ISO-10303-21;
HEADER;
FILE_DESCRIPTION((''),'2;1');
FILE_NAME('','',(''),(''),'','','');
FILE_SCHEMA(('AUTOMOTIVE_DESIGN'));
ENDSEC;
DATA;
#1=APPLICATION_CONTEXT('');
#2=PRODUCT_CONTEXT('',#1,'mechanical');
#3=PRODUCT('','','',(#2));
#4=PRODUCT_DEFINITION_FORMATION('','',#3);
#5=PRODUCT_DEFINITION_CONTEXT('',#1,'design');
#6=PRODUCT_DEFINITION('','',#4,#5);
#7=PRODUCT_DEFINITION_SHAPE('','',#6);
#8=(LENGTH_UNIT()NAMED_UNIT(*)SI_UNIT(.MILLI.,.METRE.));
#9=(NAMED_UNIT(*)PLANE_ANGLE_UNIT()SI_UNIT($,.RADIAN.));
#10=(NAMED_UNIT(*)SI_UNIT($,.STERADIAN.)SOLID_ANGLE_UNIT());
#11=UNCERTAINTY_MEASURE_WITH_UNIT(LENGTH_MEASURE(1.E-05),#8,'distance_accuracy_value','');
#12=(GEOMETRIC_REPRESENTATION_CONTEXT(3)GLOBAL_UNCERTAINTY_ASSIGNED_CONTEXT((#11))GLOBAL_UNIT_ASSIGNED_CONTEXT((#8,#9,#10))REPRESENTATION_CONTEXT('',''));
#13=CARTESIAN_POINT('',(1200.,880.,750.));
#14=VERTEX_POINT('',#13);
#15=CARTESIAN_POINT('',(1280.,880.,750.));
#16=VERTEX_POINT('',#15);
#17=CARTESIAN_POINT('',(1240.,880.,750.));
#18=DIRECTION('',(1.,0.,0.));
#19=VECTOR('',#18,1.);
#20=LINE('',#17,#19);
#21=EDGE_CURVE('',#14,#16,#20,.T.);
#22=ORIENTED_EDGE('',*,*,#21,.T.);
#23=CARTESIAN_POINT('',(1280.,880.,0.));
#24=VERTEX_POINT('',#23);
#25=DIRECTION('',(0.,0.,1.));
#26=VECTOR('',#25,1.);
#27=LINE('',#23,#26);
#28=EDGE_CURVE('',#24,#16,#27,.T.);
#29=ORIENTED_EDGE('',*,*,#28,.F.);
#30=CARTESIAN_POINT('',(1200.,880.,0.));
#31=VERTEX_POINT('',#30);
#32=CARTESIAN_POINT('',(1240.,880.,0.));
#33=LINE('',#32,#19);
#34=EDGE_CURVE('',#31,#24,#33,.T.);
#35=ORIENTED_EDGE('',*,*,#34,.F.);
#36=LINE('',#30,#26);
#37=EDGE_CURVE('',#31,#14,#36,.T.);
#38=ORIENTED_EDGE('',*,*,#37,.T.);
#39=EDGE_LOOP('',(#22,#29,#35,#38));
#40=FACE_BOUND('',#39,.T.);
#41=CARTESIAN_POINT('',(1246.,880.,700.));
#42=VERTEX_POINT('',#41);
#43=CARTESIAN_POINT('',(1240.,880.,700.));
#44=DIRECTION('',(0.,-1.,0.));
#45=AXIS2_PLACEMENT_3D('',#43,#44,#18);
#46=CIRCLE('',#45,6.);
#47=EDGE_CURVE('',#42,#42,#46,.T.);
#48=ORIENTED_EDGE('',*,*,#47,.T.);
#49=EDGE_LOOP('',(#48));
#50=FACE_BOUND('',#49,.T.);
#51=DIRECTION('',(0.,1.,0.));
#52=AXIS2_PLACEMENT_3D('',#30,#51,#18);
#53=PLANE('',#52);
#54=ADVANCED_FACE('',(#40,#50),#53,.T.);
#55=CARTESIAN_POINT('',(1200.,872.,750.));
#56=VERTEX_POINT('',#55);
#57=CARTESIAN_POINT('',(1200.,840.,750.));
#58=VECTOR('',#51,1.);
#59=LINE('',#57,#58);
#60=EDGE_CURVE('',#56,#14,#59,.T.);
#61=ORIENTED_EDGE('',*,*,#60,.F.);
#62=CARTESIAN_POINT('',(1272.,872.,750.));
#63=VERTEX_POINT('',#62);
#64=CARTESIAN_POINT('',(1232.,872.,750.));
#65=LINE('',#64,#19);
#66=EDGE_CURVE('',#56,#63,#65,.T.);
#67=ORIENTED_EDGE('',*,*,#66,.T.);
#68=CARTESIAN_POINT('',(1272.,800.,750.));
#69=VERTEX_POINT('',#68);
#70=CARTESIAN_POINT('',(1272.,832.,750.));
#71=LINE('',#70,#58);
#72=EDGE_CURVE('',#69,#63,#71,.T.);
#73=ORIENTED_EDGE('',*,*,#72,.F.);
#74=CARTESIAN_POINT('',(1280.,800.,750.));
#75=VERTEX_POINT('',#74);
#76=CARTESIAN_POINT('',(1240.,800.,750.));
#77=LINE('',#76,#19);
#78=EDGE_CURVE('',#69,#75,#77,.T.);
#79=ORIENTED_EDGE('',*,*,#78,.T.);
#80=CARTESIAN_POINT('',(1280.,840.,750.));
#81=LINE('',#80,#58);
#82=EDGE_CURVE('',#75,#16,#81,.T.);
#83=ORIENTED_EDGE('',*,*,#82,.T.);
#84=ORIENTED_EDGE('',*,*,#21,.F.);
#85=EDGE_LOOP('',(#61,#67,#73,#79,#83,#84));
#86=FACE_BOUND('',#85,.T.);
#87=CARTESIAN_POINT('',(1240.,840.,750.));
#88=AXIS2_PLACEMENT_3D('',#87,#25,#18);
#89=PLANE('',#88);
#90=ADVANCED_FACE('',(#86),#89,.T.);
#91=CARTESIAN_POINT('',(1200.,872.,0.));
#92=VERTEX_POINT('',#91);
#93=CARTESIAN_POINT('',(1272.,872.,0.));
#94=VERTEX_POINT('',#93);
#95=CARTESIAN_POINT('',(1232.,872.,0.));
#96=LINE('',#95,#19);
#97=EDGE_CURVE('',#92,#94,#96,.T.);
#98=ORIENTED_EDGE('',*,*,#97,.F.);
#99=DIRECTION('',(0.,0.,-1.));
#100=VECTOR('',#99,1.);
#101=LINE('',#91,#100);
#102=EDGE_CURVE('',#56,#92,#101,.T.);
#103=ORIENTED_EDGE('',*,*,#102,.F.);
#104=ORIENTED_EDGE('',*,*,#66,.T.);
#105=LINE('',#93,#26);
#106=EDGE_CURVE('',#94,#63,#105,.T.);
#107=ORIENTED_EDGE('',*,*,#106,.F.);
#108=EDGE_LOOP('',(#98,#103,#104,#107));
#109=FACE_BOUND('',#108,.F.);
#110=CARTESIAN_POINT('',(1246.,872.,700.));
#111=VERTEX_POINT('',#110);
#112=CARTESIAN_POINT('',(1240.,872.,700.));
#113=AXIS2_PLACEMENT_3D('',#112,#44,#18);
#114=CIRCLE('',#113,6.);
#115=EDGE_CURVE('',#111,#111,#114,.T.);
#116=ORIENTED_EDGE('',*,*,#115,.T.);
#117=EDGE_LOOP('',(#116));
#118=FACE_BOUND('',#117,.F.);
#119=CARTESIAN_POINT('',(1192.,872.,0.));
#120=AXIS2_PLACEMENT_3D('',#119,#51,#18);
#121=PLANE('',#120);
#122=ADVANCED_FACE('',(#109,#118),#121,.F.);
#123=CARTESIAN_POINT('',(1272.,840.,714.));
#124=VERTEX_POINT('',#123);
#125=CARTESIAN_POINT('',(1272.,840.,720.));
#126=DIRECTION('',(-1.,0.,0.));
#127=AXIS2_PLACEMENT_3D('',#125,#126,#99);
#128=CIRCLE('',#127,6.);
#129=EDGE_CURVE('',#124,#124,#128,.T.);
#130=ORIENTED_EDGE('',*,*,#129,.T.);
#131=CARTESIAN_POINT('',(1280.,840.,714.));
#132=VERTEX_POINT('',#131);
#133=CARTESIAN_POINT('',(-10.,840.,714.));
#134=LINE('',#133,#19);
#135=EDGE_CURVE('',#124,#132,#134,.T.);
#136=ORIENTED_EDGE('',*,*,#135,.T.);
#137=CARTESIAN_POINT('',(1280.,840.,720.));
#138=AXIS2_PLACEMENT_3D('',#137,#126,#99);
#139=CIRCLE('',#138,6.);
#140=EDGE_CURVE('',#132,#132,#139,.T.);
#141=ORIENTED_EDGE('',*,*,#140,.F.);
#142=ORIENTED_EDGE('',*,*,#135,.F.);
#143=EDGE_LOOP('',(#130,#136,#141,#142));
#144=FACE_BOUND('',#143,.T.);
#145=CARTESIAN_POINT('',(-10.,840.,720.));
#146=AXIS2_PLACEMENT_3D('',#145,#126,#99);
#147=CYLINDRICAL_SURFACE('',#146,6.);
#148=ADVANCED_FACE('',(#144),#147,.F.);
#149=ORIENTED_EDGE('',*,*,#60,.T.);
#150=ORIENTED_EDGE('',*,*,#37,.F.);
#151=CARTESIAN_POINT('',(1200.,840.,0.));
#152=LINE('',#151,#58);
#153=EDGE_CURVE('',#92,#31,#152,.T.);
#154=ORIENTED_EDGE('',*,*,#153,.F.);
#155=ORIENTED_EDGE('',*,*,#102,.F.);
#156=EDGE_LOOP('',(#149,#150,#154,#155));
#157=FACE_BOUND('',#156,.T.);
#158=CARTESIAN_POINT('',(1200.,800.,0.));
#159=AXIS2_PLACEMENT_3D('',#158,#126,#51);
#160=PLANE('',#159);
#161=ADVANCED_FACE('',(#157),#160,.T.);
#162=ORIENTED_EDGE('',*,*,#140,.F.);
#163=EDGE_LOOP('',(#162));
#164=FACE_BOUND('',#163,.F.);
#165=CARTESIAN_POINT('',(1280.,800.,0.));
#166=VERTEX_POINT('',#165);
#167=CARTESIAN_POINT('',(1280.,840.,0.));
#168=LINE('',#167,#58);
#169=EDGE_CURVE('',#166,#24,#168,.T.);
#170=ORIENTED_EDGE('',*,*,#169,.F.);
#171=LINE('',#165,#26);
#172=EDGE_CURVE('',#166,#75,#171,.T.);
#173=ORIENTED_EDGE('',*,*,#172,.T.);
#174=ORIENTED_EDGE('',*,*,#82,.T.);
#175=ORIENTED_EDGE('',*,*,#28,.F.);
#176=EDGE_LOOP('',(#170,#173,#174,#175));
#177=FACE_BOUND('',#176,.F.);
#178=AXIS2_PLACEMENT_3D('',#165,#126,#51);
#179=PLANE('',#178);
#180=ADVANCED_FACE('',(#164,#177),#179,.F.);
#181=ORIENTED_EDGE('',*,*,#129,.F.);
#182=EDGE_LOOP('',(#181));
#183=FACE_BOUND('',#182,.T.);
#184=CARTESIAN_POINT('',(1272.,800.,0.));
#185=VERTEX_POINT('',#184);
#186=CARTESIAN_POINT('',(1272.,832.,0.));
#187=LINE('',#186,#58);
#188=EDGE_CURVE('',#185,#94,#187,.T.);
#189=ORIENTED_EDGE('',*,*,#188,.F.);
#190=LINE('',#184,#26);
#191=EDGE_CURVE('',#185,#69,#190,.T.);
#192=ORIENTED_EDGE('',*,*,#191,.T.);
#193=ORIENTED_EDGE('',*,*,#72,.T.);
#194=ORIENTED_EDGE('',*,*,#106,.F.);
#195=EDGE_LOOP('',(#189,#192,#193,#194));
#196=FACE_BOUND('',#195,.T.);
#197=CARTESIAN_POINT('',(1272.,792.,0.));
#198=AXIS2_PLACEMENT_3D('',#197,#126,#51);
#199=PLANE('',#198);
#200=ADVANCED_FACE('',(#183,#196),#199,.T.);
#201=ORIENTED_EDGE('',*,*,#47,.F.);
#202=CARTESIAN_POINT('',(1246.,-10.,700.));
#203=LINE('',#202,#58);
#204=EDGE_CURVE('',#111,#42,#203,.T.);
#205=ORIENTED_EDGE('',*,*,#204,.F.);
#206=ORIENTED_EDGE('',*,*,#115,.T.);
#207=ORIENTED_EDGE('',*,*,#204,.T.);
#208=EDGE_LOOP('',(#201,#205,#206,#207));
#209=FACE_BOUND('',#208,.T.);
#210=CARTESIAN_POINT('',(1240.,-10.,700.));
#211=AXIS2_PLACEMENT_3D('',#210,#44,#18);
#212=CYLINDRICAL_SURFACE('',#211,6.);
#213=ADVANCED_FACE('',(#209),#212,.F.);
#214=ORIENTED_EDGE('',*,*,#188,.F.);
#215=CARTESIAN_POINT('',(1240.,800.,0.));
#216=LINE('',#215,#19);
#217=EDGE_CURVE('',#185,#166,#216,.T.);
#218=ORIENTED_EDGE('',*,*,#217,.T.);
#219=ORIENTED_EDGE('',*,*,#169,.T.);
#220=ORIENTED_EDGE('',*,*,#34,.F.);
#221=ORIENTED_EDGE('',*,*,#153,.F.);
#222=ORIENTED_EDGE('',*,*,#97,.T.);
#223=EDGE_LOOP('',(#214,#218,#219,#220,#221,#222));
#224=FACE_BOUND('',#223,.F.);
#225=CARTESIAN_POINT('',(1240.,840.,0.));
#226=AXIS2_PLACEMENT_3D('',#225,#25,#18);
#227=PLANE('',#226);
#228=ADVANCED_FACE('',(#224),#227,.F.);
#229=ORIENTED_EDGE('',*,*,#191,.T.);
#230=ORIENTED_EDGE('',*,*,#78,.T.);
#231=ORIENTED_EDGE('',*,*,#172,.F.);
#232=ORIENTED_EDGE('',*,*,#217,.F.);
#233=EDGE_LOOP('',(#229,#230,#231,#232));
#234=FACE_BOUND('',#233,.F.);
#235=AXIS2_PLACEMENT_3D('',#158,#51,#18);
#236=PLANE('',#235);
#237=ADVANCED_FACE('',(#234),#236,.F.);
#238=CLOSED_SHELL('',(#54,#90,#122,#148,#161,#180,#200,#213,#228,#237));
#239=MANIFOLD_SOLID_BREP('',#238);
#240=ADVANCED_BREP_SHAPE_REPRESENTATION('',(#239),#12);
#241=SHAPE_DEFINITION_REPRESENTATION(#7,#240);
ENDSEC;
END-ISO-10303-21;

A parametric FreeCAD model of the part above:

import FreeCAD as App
import Part
import Sketcher
Q = App.Units.Quantity


def add_polygon(sketch, points):
    """Adds a closed chain of lines whose ends are joined by coincident constraints."""
    first, n = sketch.GeometryCount, len(points)
    for a, b in zip(points, points[1:] + points[:1]):
        sketch.addGeometry(Part.LineSegment(App.Vector(*a, 0), App.Vector(*b, 0)), False)
    for i in range(n):
        sketch.addConstraint(Sketcher.Constraint("Coincident", first + i, 2, first + (i + 1) % n, 1))

doc = App.newDocument("Part")
params = doc.addObject("Spreadsheet::Sheet", "Params")
for row, (alias, value) in enumerate([
    ("sketch1_diameter", "12 mm"),
    ("pad1_length", "900 mm"),
    ("sketch2_diameter", "12 mm"),
    ("pad2_length", "1300 mm"),
    ("sketch3_width", "80 mm"),
    ("pad3_length", "750 mm"),
    ("sketch4_width", "80 mm"),
    ("pad4_length", "750 mm"),
], start=1):
    params.set(f"A{row}", alias)
    params.set(f"B{row}", "=" + value)
    params.setAlias(f"B{row}", alias)

body = doc.addObject("PartDesign::Body", "Body")

# Sketch on XY plane
sketch1 = body.newObject("Sketcher::SketchObject", "Sketch")
sketch1.AttachmentSupport = (doc.getObject("XY_Plane"), [""])
sketch1.MapMode = "FlatFace"
sketch1.addGeometry(Part.Circle(App.Vector(0, 0, 0), App.Vector(0, 0, 1), 6), False)
sketch1.addConstraint([
    Sketcher.Constraint("Coincident", 0, 3, -1, 1),
    Sketcher.Constraint("Diameter", 0, Q("12 mm")),
])
sketch1.setExpression("Constraints[1]", "Params.sketch1_diameter")
pad1 = body.newObject("PartDesign::Pad", "Pad")
pad1.Profile = sketch1
pad1.setExpression("Length", "Params.pad1_length")
body2 = doc.addObject("PartDesign::Body", "Body001")
doc.recompute()

body.Placement = App.Placement(App.Vector(0, 0, 0), App.Rotation(App.Vector(1, 0, 0), 270))
boolean = body2.newObject("PartDesign::Boolean", "Boolean")
boolean.Type = "Fuse"
boolean.addObjects([body])
body3 = doc.addObject("PartDesign::Body", "Body002")
doc.recompute()

body2.Placement = App.Placement(App.Vector(1240, -10, 700), App.Rotation(App.Vector(0, 0, 1), 0))
boolean2 = body3.newObject("PartDesign::Boolean", "Boolean001")
boolean2.Type = "Fuse"
boolean2.addObjects([body2])
body4 = doc.addObject("PartDesign::Body", "Body003")

# Sketch on XY plane
sketch2 = body4.newObject("Sketcher::SketchObject", "Sketch001")
sketch2.AttachmentSupport = (doc.getObject("XY_Plane003"), [""])
sketch2.MapMode = "FlatFace"
sketch2.addGeometry(Part.Circle(App.Vector(0, 0, 0), App.Vector(0, 0, 1), 6), False)
sketch2.addConstraint([
    Sketcher.Constraint("Coincident", 0, 3, -1, 1),
    Sketcher.Constraint("Diameter", 0, Q("12 mm")),
])
sketch2.setExpression("Constraints[1]", "Params.sketch2_diameter")
pad2 = body4.newObject("PartDesign::Pad", "Pad001")
pad2.Profile = sketch2
pad2.setExpression("Length", "Params.pad2_length")
body5 = doc.addObject("PartDesign::Body", "Body004")
doc.recompute()

body4.Placement = App.Placement(App.Vector(0, 0, 0), App.Rotation(App.Vector(0, 1, 0), 90))
boolean3 = body5.newObject("PartDesign::Boolean", "Boolean002")
boolean3.Type = "Fuse"
boolean3.addObjects([body4])
body6 = doc.addObject("PartDesign::Body", "Body005")
doc.recompute()

body5.Placement = App.Placement(App.Vector(-10, 840, 720), App.Rotation(App.Vector(0, 0, 1), 0))
boolean4 = body6.newObject("PartDesign::Boolean", "Boolean003")
boolean4.Type = "Fuse"
boolean4.addObjects([body5])
body7 = doc.addObject("PartDesign::Body", "Body006")

# Sketch on XY plane
sketch3 = body7.newObject("Sketcher::SketchObject", "Sketch002")
sketch3.AttachmentSupport = (doc.getObject("XY_Plane006"), [""])
sketch3.MapMode = "FlatFace"
add_polygon(sketch3, [(1192, 872), (1192, 792), (1272, 792), (1272, 872)])  # lines 0-3
sketch3.addConstraint([
    Sketcher.Constraint("Vertical", 0),
    Sketcher.Constraint("Horizontal", 1),
    Sketcher.Constraint("Vertical", 2),
    Sketcher.Constraint("Horizontal", 3),
    Sketcher.Constraint("Equal", 3, 0),
    Sketcher.Constraint("DistanceX", 1, 1, 1, 2, Q("80 mm")),
    Sketcher.Constraint("DistanceX", -1, 1, 0, 2, Q("1192 mm")),
    Sketcher.Constraint("DistanceY", -1, 1, 0, 2, Q("792 mm")),
])
sketch3.setExpression("Constraints[9]", "Params.sketch3_width")
pad3 = body7.newObject("PartDesign::Pad", "Pad002")
pad3.Profile = sketch3
pad3.setExpression("Length", "Params.pad3_length")
body8 = doc.addObject("PartDesign::Body", "Body007")

# Sketch on XY plane
sketch4 = body8.newObject("Sketcher::SketchObject", "Sketch003")
sketch4.AttachmentSupport = (doc.getObject("XY_Plane007"), [""])
sketch4.MapMode = "FlatFace"
add_polygon(sketch4, [(1200, 880), (1200, 800), (1280, 800), (1280, 880)])  # lines 0-3
sketch4.addConstraint([
    Sketcher.Constraint("Vertical", 0),
    Sketcher.Constraint("Horizontal", 1),
    Sketcher.Constraint("Vertical", 2),
    Sketcher.Constraint("Horizontal", 3),
    Sketcher.Constraint("Equal", 3, 0),
    Sketcher.Constraint("DistanceX", 1, 1, 1, 2, Q("80 mm")),
    Sketcher.Constraint("DistanceX", -1, 1, 0, 2, Q("1200 mm")),
    Sketcher.Constraint("DistanceY", -1, 1, 0, 2, Q("800 mm")),
])
sketch4.setExpression("Constraints[9]", "Params.sketch4_width")
pad4 = body8.newObject("PartDesign::Pad", "Pad003")
pad4.Profile = sketch4
pad4.setExpression("Length", "Params.pad4_length")
doc.recompute()

boolean5 = body8.newObject("PartDesign::Boolean", "Boolean004")
boolean5.Type = "Cut"
boolean5.addObjects([body7])
doc.recompute()

boolean6 = body8.newObject("PartDesign::Boolean", "Boolean005")
boolean6.Type = "Cut"
boolean6.addObjects([body6])
doc.recompute()

boolean7 = body8.newObject("PartDesign::Boolean", "Boolean006")
boolean7.Type = "Cut"
boolean7.addObjects([body3])

doc.recompute()
